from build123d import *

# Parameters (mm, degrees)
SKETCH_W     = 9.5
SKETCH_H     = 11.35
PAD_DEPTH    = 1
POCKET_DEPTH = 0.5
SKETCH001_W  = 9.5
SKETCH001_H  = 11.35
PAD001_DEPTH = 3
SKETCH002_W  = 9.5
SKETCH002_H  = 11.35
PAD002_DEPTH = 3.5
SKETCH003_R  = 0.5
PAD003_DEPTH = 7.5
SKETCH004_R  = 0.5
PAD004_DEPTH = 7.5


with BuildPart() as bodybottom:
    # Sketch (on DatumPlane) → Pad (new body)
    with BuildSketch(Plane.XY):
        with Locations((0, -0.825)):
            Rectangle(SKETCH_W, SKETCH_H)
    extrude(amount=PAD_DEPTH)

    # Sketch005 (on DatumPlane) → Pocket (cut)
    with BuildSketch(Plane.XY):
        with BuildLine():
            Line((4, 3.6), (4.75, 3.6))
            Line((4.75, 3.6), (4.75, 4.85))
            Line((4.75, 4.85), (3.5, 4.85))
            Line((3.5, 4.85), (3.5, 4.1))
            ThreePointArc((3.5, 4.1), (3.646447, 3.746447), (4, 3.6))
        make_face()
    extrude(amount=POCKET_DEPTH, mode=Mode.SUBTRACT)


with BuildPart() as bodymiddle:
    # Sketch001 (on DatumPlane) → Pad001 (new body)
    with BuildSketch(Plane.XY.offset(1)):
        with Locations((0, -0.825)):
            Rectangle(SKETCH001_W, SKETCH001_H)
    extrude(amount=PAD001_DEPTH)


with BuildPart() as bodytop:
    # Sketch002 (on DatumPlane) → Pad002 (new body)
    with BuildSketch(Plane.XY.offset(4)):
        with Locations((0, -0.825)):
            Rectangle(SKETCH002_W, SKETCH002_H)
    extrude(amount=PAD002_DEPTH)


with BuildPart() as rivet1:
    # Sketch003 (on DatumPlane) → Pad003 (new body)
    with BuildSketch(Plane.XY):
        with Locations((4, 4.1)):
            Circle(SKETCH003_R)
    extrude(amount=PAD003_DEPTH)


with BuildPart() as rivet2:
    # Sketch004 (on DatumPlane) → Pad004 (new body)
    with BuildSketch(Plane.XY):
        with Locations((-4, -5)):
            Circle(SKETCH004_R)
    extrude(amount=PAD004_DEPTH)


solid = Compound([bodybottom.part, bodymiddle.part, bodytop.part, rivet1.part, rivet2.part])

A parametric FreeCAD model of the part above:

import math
import FreeCAD as App
import Part
import Sketcher

V = App.Vector


def add_polygon(sketch, points):
    """Adds a closed chain of lines whose ends are joined by coincident constraints."""
    first, n = sketch.GeometryCount, len(points)
    for a, b in zip(points, points[1:] + points[:1]):
        sketch.addGeometry(Part.LineSegment(App.Vector(*a, 0), App.Vector(*b, 0)), False)
    for i in range(n):
        sketch.addConstraint(Sketcher.Constraint("Coincident", first + i, 2, first + (i + 1) % n, 1))

doc = App.newDocument("Part")
params = doc.addObject("Spreadsheet::Sheet", "Params")
for row, (alias, value) in enumerate([
    ("sketch1_width", "9.5 mm"),
    ("sketch1_height", "11.35 mm"),
    ("pad1_length", "1 mm"),
    ("sketch2_radius", "0.500001 mm"),
    ("sketch2_width", "0.75 mm"),
    ("pocket1_length", "0.5 mm"),
    ("sketch3_width", "9.5 mm"),
    ("sketch3_height", "11.35 mm"),
    ("pad2_length", "3 mm"),
    ("sketch4_width", "9.5 mm"),
    ("sketch4_height", "11.35 mm"),
    ("pad3_length", "3.5 mm"),
    ("sketch5_diameter", "1 mm"),
    ("pad4_length", "7.5 mm"),
    ("sketch6_diameter", "1 mm"),
    ("pad5_length", "7.5 mm"),
], start=1):
    params.set(f"A{row}", alias)
    params.set(f"B{row}", "=" + value)
    params.setAlias(f"B{row}", alias)

body = doc.addObject("PartDesign::Body", "Body")

# Sketch on XY plane
sketch1 = doc.addObject("Sketcher::SketchObject", "Sketch")
body.addObject(sketch1)
sketch1.AttachmentSupport = (doc.XY_Plane, [""])
sketch1.MapMode = "FlatFace"
add_polygon(sketch1, [(-5, 5), (-5, -6), (5, -6), (5, 5)])  # lines 0-3
sketch1.addConstraint([
    Sketcher.Constraint("Vertical", 0),
    Sketcher.Constraint("Horizontal", 1),
    Sketcher.Constraint("Vertical", 2),
    Sketcher.Constraint("Horizontal", 3),
    Sketcher.Constraint("DistanceX", 1, 1, 1, 2, 9.5),
    Sketcher.Constraint("DistanceY", 0, 2, 0, 1, 11.35),
    Sketcher.Constraint("DistanceY", 0, 2, -1, 1, 6.5),
    Sketcher.Constraint("DistanceX", 0, 2, -1, 1, 4.75),
])
sketch1.setExpression("Constraints[8]", "Params.sketch1_width")
sketch1.setExpression("Constraints[9]", "Params.sketch1_height")
pad1 = doc.addObject("PartDesign::Pad", "Pad")
body.addObject(pad1)
pad1.Profile = sketch1
pad1.setExpression("Length", "Params.pad1_length")

# Sketch on XY plane
sketch2 = doc.addObject("Sketcher::SketchObject", "Sketch001")
body.addObject(sketch2)
sketch2.AttachmentSupport = (doc.XY_Plane, [""])
sketch2.MapMode = "FlatFace"
sketch2.addGeometry([
    Part.LineSegment(V(4, 3.6, 0), V(4.8, 3.6, 0)),  # 0
    Part.LineSegment(V(4.8, 3.6, 0), V(4.8, 4.8, 0)),  # 1
    Part.LineSegment(V(4.8, 4.8, 0), V(3.5, 4.8, 0)),  # 2
    Part.LineSegment(V(3.5, 4.8, 0), V(3.5, 4.1, 0)),  # 3
    Part.ArcOfCircle(Part.Circle(V(4, 4.1, 0), V(0, 0, 1), 0.5), math.radians(-180), math.radians(-90)),  # 4
], False)
sketch2.addConstraint([
    Sketcher.Constraint("Coincident", 0, 2, 1, 1),
    Sketcher.Constraint("Coincident", 1, 2, 2, 1),
    Sketcher.Constraint("Coincident", 2, 2, 3, 1),
    Sketcher.Constraint("Coincident", 3, 2, 4, 1),
    Sketcher.Constraint("Coincident", 4, 2, 0, 1),
    Sketcher.Constraint("Horizontal", 0),
    Sketcher.Constraint("Vertical", 1),
    Sketcher.Constraint("Horizontal", 2),
    Sketcher.Constraint("Vertical", 3),
    Sketcher.Constraint("Horizontal", 4, 3, 3, 2),
    Sketcher.Constraint("Equal", 2, 1),
    Sketcher.Constraint("Equal", 0, 3),
    Sketcher.Constraint("Radius", 4, 0.500001),
    Sketcher.Constraint("DistanceX", -1, 1, 4, 3, 4.000001),
    Sketcher.Constraint("DistanceX", 0, 1, 0, 2, 0.75),
    Sketcher.Constraint("DistanceY", -1, 1, 4, 3, 4.100001),
])
sketch2.setExpression("Constraints[12]", "Params.sketch2_radius")
sketch2.setExpression("Constraints[14]", "Params.sketch2_width")
pocket1 = doc.addObject("PartDesign::Pocket", "Pocket")
body.addObject(pocket1)
pocket1.Profile = sketch2
pocket1.setExpression("Length", "Params.pocket1_length")
pocket1.Reversed = True
body2 = doc.addObject("PartDesign::Body", "Body001")

# Sketch on XY plane
sketch3 = doc.addObject("Sketcher::SketchObject", "Sketch002")
body2.addObject(sketch3)
sketch3.AttachmentSupport = (doc.getObject("XY_Plane001"), [""])
sketch3.MapMode = "FlatFace"
sketch3.AttachmentOffset = App.Placement(V(0, 0, 1), App.Rotation())
add_polygon(sketch3, [(-5, 5), (-5, -6), (5, -6), (5, 5)])  # lines 0-3
sketch3.addConstraint([
    Sketcher.Constraint("Vertical", 0),
    Sketcher.Constraint("Horizontal", 1),
    Sketcher.Constraint("Vertical", 2),
    Sketcher.Constraint("Horizontal", 3),
    Sketcher.Constraint("DistanceX", 1, 1, 1, 2, 9.5),
    Sketcher.Constraint("DistanceY", 0, 2, 0, 1, 11.35),
    Sketcher.Constraint("DistanceY", 0, 2, -1, 1, 6.5),
    Sketcher.Constraint("DistanceX", 0, 2, -1, 1, 4.75),
])
sketch3.setExpression("Constraints[8]", "Params.sketch3_width")
sketch3.setExpression("Constraints[9]", "Params.sketch3_height")
pad2 = doc.addObject("PartDesign::Pad", "Pad001")
body2.addObject(pad2)
pad2.Profile = sketch3
pad2.setExpression("Length", "Params.pad2_length")
body3 = doc.addObject("PartDesign::Body", "Body002")

# Sketch on XY plane
sketch4 = doc.addObject("Sketcher::SketchObject", "Sketch003")
body3.addObject(sketch4)
sketch4.AttachmentSupport = (doc.getObject("XY_Plane002"), [""])
sketch4.MapMode = "FlatFace"
sketch4.AttachmentOffset = App.Placement(V(0, 0, 4), App.Rotation())
add_polygon(sketch4, [(-5, 5), (-5, -6), (5, -6), (5, 5)])  # lines 0-3
sketch4.addConstraint([
    Sketcher.Constraint("Vertical", 0),
    Sketcher.Constraint("Horizontal", 1),
    Sketcher.Constraint("Vertical", 2),
    Sketcher.Constraint("Horizontal", 3),
    Sketcher.Constraint("DistanceX", 1, 1, 1, 2, 9.5),
    Sketcher.Constraint("DistanceY", 0, 2, 0, 1, 11.35),
    Sketcher.Constraint("DistanceY", 0, 2, -1, 1, 6.5),
    Sketcher.Constraint("DistanceX", 0, 2, -1, 1, 4.75),
])
sketch4.setExpression("Constraints[8]", "Params.sketch4_width")
sketch4.setExpression("Constraints[9]", "Params.sketch4_height")
pad3 = doc.addObject("PartDesign::Pad", "Pad002")
body3.addObject(pad3)
pad3.Profile = sketch4
pad3.setExpression("Length", "Params.pad3_length")
body4 = doc.addObject("PartDesign::Body", "Body003")

# Sketch on XY plane
sketch5 = doc.addObject("Sketcher::SketchObject", "Sketch004")
body4.addObject(sketch5)
sketch5.AttachmentSupport = (doc.getObject("XY_Plane003"), [""])
sketch5.MapMode = "FlatFace"
sketch5.addGeometry(Part.Circle(V(4, 4.1, 0), V(0, 0, 1), 0.5), False)
sketch5.addConstraint([
    Sketcher.Constraint("Diameter", 0, 1.0),
    Sketcher.Constraint("DistanceX", -1, 1, 0, 3, 4.0),
    Sketcher.Constraint("DistanceY", -1, 1, 0, 3, 4.1),
])
sketch5.setExpression("Constraints[0]", "Params.sketch5_diameter")
pad4 = doc.addObject("PartDesign::Pad", "Pad003")
body4.addObject(pad4)
pad4.Profile = sketch5
pad4.setExpression("Length", "Params.pad4_length")
body5 = doc.addObject("PartDesign::Body", "Body004")

# Sketch on XY plane
sketch6 = doc.addObject("Sketcher::SketchObject", "Sketch005")
body5.addObject(sketch6)
sketch6.AttachmentSupport = (doc.getObject("XY_Plane004"), [""])
sketch6.MapMode = "FlatFace"
sketch6.addGeometry(Part.Circle(V(-4, -5, 0), V(0, 0, 1), 0.5), False)
sketch6.addConstraint([
    Sketcher.Constraint("Diameter", 0, 1.0),
    Sketcher.Constraint("DistanceX", 0, 3, -1, 1, 4.0),
    Sketcher.Constraint("DistanceY", 0, 3, -1, 1, 5.0),
])
sketch6.setExpression("Constraints[0]", "Params.sketch6_diameter")
pad5 = doc.addObject("PartDesign::Pad", "Pad004")
body5.addObject(pad5)
pad5.Profile = sketch6
pad5.setExpression("Length", "Params.pad5_length")

doc.recompute()
